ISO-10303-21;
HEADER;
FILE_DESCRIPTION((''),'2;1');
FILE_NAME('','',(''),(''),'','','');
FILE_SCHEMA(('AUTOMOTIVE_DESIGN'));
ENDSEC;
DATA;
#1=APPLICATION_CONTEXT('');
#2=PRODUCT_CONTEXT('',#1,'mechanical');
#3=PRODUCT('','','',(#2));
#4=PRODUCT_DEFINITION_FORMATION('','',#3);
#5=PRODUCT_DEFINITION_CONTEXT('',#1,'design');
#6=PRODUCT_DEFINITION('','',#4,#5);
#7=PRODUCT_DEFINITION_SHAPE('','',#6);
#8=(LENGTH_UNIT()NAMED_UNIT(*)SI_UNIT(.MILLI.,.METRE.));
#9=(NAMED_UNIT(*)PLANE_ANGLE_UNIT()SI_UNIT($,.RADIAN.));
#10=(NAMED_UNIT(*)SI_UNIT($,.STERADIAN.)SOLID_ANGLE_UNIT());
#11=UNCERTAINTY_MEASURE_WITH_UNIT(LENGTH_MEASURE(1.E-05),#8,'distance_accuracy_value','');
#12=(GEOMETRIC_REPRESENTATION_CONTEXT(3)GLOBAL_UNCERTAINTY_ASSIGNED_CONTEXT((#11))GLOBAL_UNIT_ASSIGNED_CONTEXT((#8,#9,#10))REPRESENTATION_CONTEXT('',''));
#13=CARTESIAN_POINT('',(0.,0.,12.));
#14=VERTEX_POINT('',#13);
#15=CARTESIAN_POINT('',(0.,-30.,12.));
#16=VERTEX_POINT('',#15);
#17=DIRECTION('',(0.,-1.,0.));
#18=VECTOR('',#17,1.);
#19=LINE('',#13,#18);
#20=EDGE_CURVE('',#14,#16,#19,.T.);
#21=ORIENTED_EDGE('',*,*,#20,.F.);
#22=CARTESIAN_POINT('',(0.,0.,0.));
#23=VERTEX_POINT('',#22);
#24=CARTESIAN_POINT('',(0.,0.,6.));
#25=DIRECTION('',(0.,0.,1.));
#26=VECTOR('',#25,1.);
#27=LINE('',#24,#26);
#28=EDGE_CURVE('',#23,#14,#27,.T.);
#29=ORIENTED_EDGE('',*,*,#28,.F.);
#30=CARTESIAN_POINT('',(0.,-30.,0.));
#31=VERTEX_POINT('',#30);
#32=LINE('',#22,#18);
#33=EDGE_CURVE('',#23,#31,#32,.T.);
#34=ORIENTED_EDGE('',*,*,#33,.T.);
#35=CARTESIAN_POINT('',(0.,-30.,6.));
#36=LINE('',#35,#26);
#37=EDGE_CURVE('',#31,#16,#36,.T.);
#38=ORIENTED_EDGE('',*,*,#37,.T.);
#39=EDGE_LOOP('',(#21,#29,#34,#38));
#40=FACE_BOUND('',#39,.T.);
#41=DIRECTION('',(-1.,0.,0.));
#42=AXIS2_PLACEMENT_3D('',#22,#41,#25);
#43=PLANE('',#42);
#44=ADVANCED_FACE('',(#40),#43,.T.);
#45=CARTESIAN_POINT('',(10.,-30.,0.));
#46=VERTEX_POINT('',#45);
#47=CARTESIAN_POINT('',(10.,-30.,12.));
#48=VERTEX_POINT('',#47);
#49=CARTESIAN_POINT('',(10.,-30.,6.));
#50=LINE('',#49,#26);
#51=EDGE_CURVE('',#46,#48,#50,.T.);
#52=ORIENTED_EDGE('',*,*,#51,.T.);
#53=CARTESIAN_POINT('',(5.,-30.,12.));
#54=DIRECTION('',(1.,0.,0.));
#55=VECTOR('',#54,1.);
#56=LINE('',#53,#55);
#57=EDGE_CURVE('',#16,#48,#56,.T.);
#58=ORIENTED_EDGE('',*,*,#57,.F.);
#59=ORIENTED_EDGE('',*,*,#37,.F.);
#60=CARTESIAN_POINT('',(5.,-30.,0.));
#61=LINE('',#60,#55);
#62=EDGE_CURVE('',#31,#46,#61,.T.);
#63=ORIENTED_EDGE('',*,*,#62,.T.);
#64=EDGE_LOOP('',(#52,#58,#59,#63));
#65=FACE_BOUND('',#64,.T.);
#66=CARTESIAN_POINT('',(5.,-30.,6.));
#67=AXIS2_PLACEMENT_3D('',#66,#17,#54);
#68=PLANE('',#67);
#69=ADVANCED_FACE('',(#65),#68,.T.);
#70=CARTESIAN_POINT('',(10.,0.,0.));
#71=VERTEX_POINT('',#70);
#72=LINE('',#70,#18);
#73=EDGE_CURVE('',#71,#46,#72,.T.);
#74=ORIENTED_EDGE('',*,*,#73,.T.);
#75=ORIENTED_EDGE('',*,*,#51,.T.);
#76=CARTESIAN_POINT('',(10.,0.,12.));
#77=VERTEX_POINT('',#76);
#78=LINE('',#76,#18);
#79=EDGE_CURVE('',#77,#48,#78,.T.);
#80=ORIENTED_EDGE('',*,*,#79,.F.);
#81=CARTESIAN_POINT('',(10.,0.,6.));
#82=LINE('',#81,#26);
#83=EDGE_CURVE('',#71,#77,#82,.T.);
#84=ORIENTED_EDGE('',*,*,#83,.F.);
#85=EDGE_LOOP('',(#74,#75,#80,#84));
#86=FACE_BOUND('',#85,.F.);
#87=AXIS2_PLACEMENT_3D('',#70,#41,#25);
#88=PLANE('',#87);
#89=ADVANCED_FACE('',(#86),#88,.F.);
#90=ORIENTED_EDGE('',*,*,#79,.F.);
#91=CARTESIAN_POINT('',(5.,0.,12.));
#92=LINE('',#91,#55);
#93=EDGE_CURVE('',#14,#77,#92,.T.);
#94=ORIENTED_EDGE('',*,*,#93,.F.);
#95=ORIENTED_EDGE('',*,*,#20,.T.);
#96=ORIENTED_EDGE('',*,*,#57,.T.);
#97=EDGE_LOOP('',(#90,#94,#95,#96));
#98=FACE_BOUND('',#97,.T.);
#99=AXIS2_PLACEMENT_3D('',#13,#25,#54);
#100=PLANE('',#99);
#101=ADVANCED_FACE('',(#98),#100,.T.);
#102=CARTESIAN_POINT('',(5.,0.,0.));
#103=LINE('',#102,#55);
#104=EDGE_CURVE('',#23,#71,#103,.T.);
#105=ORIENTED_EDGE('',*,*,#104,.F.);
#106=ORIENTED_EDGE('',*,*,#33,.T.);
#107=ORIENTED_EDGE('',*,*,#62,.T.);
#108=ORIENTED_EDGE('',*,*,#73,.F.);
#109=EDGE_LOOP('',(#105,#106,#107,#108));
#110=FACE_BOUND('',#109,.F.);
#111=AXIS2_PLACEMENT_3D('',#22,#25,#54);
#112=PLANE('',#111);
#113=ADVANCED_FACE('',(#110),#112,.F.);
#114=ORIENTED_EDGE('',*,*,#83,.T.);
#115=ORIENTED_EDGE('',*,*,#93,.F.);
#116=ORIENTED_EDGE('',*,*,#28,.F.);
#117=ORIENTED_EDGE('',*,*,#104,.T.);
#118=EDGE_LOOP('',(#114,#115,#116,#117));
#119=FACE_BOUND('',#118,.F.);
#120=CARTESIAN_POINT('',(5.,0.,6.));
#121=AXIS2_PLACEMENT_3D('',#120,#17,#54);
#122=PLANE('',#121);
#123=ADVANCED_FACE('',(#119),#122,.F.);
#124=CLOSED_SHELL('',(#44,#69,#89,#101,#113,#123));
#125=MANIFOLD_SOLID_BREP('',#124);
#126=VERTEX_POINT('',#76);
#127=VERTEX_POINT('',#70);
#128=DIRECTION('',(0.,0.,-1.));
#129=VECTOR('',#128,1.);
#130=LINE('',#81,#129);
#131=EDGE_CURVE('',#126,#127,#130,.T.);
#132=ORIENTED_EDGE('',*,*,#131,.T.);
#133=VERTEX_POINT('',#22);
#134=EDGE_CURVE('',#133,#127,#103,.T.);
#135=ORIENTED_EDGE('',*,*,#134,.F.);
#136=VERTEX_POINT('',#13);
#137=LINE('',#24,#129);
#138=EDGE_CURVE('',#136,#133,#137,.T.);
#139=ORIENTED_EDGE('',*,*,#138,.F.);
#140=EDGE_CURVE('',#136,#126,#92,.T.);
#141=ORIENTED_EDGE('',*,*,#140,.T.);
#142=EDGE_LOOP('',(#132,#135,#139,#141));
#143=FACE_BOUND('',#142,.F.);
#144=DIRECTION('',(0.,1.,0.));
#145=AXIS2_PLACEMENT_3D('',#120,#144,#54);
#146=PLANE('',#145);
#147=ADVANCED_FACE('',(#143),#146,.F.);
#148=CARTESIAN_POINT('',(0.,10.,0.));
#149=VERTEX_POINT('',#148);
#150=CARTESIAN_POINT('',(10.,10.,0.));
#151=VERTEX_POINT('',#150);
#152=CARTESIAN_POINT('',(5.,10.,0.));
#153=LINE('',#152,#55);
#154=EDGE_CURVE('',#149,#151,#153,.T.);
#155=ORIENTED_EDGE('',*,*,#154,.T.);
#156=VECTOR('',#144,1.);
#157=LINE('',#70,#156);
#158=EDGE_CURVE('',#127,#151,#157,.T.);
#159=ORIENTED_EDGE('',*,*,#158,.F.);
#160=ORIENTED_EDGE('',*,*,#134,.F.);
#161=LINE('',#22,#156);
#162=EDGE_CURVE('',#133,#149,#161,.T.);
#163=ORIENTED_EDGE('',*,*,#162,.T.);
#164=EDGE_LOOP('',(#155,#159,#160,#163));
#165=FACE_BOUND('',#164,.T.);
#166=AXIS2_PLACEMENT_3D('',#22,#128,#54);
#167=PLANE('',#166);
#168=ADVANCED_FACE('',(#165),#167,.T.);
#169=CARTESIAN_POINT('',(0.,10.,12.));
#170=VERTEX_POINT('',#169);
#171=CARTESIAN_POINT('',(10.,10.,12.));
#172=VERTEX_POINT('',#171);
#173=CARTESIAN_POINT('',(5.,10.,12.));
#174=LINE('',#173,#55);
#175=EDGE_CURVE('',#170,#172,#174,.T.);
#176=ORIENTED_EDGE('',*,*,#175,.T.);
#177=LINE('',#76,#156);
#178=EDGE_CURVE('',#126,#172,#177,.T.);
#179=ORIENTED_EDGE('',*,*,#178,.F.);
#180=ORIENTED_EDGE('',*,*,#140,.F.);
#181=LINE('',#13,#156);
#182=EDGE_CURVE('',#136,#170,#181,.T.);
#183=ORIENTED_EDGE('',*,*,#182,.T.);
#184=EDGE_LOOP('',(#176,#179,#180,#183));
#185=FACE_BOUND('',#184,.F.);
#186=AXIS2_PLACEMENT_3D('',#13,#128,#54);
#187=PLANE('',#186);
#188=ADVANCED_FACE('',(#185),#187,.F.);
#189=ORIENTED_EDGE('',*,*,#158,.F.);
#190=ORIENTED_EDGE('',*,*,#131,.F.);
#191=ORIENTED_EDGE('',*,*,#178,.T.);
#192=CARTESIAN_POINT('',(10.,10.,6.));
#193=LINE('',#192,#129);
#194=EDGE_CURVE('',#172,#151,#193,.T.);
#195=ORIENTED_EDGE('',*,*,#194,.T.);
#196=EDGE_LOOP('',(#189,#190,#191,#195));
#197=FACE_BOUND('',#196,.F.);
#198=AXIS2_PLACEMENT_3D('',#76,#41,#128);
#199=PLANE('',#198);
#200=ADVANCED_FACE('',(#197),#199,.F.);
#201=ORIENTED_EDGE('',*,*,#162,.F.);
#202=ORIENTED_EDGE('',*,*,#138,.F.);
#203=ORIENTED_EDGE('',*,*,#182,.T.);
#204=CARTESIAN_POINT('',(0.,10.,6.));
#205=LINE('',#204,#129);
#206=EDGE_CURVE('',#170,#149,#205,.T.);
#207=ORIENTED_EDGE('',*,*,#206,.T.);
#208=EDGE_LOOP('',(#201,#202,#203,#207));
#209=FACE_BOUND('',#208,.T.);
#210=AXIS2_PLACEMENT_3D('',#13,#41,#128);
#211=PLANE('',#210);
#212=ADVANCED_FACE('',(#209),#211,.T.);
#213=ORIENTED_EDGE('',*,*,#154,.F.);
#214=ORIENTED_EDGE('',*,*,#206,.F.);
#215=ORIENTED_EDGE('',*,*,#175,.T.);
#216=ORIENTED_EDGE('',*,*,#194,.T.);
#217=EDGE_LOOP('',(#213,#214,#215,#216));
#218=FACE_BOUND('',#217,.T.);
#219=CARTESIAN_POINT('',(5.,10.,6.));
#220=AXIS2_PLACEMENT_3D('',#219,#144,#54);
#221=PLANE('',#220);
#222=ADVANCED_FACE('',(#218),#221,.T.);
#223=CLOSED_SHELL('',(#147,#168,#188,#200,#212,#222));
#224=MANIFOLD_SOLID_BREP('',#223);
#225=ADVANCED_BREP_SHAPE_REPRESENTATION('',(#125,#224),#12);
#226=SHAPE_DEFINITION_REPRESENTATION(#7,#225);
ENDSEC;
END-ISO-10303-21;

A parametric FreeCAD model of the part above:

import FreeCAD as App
import Part
import Sketcher
Q = App.Units.Quantity

doc = App.newDocument("Part")
params = doc.addObject("Spreadsheet::Sheet", "Params")
for row, (alias, value) in enumerate([
    ("sketch1_width", "10 mm"),
    ("sketch1_height", "12 mm"),
    ("pad1_length", "30 mm"),
    ("sketch2_width", "10 mm"),
    ("sketch2_height", "12 mm"),
    ("pad2_length", "10 mm"),
], start=1):
    params.set(f"A{row}", alias)
    params.set(f"B{row}", "=" + value)
    params.setAlias(f"B{row}", alias)

body = doc.addObject("PartDesign::Body", "Body")

# Sketch on XZ plane
sketch1 = body.newObject("Sketcher::SketchObject", "Sketch")
sketch1.AttachmentSupport = (doc.getObject("XZ_Plane"), [""])
sketch1.MapMode = "FlatFace"
sketch1.addGeometry([
    Part.LineSegment(App.Vector(0, 12, 0), App.Vector(0, 0, 0)),
    Part.LineSegment(App.Vector(0, 0, 0), App.Vector(10, 0, 0)),
    Part.LineSegment(App.Vector(10, 0, 0), App.Vector(10, 12, 0)),
    Part.LineSegment(App.Vector(10, 12, 0), App.Vector(0, 12, 0)),
], False)
sketch1.addConstraint([
    Sketcher.Constraint("Coincident", 0, 2, 1, 1),
    Sketcher.Constraint("Coincident", 1, 2, 2, 1),
    Sketcher.Constraint("Coincident", 2, 2, 3, 1),
    Sketcher.Constraint("Coincident", 3, 2, 0, 1),
    Sketcher.Constraint("Vertical", 0),
    Sketcher.Constraint("Horizontal", 1),
    Sketcher.Constraint("Vertical", 2),
    Sketcher.Constraint("Horizontal", 3),
    Sketcher.Constraint("Coincident", 0, 2, -1, 1),
    Sketcher.Constraint("DistanceX", 1, 1, 1, 2, Q("10 mm")),
    Sketcher.Constraint("DistanceY", 0, 2, 0, 1, Q("12 mm")),
])
sketch1.setExpression("Constraints[9]", "Params.sketch1_width")
sketch1.setExpression("Constraints[10]", "Params.sketch1_height")
pad1 = body.newObject("PartDesign::Pad", "Pad")
pad1.Profile = sketch1
pad1.setExpression("Length", "Params.pad1_length")
body2 = doc.addObject("PartDesign::Body", "Body001")

# Sketch on XZ plane
sketch2 = body2.newObject("Sketcher::SketchObject", "Sketch001")
sketch2.AttachmentSupport = (doc.getObject("XZ_Plane001"), [""])
sketch2.MapMode = "FlatFace"
sketch2.addGeometry([
    Part.LineSegment(App.Vector(0, 0, 0), App.Vector(0, 12, 0)),
    Part.LineSegment(App.Vector(0, 12, 0), App.Vector(10, 12, 0)),
    Part.LineSegment(App.Vector(10, 12, 0), App.Vector(10, 0, 0)),
    Part.LineSegment(App.Vector(10, 0, 0), App.Vector(0, 0, 0)),
], False)
sketch2.addConstraint([
    Sketcher.Constraint("Coincident", 0, 2, 1, 1),
    Sketcher.Constraint("Coincident", 1, 2, 2, 1),
    Sketcher.Constraint("Coincident", 2, 2, 3, 1),
    Sketcher.Constraint("Coincident", 3, 2, 0, 1),
    Sketcher.Constraint("Vertical", 0),
    Sketcher.Constraint("Horizontal", 1),
    Sketcher.Constraint("Vertical", 2),
    Sketcher.Constraint("Horizontal", 3),
    Sketcher.Constraint("Coincident", 3, 2, -1, 1),
    Sketcher.Constraint("DistanceX", 1, 1, 1, 2, Q("10 mm")),
    Sketcher.Constraint("DistanceY", 0, 1, 0, 2, Q("12 mm")),
])
sketch2.setExpression("Constraints[9]", "Params.sketch2_width")
sketch2.setExpression("Constraints[10]", "Params.sketch2_height")
pad2 = body2.newObject("PartDesign::Pad", "Pad001")
pad2.Profile = sketch2
pad2.setExpression("Length", "Params.pad2_length")
pad2.Reversed = True

doc.recompute()
